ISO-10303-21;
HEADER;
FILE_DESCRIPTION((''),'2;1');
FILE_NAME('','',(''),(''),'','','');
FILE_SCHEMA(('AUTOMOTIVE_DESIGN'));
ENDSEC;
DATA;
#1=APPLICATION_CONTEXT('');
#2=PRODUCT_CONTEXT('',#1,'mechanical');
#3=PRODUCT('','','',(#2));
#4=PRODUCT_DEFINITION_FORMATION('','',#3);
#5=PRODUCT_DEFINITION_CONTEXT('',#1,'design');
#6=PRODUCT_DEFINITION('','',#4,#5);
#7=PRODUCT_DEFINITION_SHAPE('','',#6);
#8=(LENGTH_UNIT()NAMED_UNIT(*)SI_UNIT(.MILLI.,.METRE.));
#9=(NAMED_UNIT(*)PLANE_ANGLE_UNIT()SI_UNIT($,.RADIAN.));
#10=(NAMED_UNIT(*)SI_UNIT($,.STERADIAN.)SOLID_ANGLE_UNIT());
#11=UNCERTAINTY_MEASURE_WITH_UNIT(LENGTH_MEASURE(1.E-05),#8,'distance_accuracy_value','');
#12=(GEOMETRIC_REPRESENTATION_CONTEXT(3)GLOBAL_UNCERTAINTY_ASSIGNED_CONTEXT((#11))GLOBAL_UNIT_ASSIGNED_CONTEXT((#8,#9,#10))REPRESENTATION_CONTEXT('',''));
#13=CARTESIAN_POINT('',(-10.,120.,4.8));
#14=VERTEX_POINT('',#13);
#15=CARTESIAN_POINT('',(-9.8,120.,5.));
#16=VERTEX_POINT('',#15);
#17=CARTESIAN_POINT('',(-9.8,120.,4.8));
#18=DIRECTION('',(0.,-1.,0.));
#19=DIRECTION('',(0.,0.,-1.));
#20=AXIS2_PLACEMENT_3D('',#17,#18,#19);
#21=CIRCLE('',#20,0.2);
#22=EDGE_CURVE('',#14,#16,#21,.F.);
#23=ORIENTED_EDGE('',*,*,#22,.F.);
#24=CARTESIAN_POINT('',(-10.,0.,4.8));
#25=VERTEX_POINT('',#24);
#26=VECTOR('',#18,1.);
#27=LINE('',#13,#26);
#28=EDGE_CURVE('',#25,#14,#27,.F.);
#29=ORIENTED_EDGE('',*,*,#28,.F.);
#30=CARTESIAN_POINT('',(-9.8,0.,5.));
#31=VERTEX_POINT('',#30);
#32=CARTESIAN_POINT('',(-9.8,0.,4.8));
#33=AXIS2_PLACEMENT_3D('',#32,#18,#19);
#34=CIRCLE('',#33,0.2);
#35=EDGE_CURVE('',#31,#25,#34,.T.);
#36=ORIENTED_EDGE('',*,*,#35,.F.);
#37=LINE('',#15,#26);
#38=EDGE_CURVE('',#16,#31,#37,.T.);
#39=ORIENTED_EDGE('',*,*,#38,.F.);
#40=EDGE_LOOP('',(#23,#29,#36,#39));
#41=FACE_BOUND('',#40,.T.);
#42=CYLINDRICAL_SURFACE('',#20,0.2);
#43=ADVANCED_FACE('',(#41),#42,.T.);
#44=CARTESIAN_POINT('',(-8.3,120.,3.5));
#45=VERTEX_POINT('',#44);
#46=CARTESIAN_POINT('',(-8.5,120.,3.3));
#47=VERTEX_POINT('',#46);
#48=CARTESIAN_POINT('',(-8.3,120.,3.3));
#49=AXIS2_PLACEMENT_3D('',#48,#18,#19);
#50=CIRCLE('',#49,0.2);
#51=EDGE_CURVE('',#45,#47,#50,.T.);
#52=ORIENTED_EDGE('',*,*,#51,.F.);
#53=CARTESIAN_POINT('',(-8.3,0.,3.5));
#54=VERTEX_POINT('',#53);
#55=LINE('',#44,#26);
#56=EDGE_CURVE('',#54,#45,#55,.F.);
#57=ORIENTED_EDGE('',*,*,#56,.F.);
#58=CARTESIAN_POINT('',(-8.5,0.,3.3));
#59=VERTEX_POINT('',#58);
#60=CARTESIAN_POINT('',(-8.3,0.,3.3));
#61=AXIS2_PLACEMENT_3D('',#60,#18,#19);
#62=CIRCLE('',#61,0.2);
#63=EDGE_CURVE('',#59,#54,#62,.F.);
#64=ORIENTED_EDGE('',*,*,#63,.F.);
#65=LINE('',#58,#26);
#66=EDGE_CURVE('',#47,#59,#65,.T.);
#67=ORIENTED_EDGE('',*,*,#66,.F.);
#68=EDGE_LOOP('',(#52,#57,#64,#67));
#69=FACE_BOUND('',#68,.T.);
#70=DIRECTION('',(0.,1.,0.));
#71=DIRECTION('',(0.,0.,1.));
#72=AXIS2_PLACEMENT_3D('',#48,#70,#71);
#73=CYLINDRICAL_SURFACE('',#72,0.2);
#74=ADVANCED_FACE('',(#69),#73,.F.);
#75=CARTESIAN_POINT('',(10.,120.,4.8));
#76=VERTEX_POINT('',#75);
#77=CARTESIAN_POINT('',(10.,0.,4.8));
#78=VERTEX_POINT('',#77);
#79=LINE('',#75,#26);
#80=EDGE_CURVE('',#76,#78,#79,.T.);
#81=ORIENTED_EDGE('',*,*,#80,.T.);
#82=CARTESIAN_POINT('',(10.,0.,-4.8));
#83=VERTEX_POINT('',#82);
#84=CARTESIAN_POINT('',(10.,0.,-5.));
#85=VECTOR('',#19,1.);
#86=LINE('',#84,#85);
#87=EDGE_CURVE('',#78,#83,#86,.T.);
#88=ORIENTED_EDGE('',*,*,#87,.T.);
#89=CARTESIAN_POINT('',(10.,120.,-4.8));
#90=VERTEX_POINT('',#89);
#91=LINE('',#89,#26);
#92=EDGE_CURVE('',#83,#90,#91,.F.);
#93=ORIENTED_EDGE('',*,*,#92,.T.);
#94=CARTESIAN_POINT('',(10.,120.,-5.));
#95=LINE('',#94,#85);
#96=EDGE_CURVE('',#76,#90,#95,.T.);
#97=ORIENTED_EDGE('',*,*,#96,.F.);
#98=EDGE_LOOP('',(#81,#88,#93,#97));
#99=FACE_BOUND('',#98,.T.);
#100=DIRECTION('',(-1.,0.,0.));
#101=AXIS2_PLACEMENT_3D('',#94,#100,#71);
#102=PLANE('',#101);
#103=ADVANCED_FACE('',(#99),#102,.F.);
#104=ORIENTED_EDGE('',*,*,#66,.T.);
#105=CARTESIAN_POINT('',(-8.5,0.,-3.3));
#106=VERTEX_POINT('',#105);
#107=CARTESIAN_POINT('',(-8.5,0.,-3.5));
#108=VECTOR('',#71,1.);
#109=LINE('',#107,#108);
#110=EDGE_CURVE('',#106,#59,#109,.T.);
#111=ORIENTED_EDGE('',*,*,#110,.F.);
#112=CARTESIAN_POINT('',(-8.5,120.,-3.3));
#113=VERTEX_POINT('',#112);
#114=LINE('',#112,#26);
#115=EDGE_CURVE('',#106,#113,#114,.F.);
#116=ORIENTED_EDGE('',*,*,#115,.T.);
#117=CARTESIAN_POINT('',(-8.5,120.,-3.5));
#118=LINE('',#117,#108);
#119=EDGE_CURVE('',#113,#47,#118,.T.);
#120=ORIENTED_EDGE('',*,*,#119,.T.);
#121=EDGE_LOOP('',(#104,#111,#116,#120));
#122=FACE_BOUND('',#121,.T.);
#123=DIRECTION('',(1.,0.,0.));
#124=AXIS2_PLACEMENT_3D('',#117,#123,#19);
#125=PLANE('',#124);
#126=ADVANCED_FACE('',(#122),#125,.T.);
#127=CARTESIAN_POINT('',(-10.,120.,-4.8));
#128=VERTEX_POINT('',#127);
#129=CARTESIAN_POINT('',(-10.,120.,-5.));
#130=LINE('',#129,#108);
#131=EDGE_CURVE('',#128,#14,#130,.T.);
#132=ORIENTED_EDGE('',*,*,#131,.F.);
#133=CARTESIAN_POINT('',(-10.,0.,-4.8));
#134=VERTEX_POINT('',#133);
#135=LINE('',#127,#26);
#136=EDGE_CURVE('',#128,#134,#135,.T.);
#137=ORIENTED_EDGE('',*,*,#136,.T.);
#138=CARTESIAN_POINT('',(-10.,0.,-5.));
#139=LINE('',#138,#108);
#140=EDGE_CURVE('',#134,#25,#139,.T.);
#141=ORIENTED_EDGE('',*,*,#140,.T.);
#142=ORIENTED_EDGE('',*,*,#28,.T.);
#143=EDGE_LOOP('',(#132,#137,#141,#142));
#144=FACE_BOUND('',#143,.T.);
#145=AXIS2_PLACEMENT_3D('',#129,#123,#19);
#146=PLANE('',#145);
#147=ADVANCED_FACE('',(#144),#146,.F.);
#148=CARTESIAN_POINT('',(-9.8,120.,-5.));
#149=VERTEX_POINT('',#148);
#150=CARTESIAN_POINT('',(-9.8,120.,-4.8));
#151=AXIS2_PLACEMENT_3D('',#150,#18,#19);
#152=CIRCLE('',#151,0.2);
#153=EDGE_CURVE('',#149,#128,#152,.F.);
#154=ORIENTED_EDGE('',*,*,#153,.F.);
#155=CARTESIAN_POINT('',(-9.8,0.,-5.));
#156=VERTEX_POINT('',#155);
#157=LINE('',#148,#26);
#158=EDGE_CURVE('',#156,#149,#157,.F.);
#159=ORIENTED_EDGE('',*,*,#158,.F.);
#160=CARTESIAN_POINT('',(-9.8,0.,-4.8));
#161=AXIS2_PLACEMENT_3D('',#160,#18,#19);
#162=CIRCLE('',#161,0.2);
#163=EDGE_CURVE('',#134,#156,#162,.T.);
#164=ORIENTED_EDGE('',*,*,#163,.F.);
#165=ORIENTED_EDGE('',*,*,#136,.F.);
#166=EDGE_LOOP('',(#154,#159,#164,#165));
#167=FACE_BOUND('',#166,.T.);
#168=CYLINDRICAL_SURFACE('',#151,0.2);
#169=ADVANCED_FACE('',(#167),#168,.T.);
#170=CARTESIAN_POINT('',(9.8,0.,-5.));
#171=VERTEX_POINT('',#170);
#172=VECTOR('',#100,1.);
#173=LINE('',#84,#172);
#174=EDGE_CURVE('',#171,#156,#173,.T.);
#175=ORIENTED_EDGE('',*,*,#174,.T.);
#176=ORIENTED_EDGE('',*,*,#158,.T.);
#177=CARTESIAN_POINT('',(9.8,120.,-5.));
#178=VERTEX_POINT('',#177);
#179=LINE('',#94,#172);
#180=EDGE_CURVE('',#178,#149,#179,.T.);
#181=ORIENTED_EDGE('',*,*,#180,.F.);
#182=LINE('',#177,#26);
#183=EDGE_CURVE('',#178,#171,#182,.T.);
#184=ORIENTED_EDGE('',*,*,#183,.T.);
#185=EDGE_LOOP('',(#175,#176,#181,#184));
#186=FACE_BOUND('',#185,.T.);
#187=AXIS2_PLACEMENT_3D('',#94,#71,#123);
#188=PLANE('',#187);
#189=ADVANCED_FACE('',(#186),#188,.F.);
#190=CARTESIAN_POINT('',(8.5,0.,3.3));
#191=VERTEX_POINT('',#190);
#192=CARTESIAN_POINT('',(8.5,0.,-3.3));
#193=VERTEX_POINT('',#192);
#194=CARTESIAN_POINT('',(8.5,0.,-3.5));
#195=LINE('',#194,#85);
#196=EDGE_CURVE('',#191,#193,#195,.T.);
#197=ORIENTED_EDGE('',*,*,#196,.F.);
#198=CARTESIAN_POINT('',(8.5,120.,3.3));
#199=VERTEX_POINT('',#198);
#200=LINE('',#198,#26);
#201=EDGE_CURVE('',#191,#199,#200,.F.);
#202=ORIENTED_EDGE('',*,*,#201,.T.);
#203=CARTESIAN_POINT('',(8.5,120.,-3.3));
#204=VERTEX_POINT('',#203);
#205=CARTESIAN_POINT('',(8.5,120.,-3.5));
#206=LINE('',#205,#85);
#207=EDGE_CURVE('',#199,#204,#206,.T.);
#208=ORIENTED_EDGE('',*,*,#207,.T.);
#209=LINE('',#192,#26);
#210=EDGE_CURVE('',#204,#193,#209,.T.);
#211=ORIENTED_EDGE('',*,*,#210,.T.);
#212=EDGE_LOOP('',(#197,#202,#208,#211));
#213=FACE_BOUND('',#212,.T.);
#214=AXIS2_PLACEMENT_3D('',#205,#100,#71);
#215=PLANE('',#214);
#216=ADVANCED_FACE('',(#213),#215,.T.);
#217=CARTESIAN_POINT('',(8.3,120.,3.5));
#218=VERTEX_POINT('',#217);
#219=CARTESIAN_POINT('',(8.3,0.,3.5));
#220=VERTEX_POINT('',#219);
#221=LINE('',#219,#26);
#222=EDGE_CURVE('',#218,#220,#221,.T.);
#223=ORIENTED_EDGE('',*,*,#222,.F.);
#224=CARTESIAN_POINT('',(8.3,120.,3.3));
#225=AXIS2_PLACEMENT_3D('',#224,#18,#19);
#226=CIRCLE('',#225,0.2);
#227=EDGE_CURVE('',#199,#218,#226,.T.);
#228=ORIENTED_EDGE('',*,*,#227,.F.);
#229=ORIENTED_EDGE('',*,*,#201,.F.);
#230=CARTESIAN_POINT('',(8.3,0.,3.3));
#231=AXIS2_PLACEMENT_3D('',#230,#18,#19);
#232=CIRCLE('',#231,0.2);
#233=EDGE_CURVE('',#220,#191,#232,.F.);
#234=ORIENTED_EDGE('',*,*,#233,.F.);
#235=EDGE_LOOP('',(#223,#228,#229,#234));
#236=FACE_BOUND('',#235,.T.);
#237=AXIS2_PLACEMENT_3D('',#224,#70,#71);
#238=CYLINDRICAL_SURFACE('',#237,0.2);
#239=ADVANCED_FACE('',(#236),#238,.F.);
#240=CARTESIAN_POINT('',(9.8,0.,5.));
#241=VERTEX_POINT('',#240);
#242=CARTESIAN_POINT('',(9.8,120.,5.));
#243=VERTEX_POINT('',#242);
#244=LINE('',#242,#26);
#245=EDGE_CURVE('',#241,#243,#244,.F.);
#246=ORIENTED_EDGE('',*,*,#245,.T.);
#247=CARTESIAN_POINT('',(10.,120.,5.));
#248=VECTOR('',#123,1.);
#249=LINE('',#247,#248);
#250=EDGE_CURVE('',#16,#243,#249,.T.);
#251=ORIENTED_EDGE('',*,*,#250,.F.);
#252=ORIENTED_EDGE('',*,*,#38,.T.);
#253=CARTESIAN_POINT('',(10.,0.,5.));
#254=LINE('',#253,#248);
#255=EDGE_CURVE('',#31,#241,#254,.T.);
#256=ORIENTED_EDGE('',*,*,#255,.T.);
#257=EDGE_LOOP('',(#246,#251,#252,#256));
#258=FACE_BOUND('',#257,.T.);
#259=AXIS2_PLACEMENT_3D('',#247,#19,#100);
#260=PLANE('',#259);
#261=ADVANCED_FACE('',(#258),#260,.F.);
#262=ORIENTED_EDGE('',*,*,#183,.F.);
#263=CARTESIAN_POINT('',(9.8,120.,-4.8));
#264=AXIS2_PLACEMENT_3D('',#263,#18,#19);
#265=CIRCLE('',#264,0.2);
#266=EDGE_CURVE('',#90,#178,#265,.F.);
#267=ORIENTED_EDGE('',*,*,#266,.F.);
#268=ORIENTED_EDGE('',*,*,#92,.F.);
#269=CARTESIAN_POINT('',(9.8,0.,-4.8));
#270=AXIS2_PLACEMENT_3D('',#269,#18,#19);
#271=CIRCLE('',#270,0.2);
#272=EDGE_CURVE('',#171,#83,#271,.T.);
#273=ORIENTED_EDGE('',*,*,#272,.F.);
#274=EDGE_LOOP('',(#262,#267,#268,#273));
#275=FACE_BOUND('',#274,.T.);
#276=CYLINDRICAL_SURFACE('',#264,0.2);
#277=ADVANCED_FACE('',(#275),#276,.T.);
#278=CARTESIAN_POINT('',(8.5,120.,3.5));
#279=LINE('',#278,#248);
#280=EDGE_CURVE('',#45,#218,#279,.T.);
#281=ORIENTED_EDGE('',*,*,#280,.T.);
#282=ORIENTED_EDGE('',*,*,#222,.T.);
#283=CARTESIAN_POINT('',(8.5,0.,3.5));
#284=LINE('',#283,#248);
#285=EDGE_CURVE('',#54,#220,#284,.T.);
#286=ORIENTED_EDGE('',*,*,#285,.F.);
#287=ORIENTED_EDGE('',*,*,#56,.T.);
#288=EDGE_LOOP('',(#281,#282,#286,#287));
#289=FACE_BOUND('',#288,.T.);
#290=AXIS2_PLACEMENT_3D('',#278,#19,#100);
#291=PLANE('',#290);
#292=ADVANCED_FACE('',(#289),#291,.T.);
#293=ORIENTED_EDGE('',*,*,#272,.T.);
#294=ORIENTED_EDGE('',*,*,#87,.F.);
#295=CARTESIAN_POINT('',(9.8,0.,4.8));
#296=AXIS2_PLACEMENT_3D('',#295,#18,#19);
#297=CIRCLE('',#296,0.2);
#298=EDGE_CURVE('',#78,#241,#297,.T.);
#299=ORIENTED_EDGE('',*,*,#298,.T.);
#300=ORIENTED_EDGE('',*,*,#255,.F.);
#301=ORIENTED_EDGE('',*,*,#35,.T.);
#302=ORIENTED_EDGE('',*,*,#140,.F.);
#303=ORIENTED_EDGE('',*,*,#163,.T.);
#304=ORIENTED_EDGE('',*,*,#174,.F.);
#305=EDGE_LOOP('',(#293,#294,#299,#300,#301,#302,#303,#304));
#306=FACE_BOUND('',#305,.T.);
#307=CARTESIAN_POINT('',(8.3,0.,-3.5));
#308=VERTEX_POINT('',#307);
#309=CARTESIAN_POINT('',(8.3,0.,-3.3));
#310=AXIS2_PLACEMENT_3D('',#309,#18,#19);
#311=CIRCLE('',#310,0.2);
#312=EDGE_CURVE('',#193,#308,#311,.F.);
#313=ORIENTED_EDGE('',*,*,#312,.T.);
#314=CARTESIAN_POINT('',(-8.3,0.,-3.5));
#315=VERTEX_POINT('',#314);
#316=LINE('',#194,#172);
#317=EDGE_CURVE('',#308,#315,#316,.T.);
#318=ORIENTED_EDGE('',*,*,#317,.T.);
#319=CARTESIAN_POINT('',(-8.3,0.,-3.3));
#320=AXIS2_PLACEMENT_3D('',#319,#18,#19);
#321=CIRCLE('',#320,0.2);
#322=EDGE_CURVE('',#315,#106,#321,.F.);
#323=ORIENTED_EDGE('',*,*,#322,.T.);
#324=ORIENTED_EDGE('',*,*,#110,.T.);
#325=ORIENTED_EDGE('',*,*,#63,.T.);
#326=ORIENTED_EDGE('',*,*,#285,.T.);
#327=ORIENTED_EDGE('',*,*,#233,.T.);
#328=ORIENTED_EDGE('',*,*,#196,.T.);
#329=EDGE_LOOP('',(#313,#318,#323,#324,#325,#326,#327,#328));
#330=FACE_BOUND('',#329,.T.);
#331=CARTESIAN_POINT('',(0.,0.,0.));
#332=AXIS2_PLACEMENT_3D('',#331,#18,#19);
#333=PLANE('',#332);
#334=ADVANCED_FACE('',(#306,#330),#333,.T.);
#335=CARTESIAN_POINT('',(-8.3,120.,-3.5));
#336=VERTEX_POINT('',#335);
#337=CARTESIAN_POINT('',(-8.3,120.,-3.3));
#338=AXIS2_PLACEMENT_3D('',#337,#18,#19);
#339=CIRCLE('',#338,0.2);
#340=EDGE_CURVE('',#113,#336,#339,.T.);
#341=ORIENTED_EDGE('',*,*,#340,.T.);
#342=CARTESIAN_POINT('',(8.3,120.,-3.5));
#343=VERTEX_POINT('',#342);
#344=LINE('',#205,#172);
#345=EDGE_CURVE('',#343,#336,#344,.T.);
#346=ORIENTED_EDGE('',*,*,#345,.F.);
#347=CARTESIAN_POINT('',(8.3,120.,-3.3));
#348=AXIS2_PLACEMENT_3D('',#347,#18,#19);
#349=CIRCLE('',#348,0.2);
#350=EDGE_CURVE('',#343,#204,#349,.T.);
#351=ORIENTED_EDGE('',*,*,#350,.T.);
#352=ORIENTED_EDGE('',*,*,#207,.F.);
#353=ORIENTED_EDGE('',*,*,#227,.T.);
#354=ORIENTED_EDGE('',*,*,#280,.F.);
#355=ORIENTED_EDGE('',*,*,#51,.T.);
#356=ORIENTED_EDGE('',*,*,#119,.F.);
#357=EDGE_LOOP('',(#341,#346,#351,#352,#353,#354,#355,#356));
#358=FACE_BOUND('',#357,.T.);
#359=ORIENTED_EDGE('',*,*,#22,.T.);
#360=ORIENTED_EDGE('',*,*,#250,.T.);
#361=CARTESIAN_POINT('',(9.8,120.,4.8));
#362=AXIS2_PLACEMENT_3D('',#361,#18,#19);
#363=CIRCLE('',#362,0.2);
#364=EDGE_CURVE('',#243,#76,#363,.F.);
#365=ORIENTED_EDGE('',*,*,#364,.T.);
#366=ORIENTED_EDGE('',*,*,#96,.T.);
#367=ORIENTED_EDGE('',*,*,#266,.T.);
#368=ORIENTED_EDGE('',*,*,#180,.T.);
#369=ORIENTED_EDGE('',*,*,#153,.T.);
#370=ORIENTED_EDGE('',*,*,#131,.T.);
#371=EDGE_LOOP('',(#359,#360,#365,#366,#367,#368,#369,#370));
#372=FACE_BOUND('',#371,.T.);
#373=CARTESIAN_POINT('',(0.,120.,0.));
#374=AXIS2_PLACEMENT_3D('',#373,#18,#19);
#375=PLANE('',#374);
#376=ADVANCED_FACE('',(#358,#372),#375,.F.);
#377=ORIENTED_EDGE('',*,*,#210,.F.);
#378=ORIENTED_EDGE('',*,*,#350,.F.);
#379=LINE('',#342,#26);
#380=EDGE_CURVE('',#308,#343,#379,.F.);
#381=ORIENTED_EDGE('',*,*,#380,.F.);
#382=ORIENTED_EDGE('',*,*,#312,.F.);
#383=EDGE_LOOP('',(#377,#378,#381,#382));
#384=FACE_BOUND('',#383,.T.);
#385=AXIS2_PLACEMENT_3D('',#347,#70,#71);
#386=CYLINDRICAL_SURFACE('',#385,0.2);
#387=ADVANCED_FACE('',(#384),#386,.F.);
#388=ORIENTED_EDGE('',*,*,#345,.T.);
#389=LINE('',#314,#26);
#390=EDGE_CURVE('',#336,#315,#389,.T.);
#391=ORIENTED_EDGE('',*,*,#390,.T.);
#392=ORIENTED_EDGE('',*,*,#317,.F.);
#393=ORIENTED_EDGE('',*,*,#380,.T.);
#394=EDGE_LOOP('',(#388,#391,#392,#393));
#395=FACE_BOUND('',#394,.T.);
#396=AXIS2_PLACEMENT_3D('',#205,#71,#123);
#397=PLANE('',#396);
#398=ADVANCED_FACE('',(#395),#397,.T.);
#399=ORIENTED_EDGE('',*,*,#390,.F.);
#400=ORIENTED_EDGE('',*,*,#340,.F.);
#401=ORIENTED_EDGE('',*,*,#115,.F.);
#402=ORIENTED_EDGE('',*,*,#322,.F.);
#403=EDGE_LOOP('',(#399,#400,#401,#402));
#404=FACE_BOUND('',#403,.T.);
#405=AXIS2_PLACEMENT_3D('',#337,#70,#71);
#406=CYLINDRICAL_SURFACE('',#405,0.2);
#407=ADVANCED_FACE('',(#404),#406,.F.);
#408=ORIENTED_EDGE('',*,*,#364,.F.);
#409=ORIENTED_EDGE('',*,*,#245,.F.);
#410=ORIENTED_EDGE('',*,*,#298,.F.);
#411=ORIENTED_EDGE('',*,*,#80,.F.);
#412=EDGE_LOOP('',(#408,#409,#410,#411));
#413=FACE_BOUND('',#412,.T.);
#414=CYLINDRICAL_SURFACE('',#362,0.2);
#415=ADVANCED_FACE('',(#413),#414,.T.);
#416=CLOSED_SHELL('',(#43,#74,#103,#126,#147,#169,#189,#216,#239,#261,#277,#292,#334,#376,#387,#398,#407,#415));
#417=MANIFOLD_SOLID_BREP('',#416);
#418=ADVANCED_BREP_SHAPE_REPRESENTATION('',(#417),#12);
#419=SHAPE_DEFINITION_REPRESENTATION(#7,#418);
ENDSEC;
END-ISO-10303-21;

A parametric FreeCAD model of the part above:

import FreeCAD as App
import Part
import Sketcher

V = App.Vector
Q = App.Units.Quantity


def edges_at(feature, points):
    """Names of the edges that pass closest to the given points."""
    edges = feature.Shape.Edges
    near = lambda p: min(range(len(edges)), key=lambda i: edges[i].distToShape(Part.Vertex(*p))[0])
    return sorted({f"Edge{near(p) + 1}" for p in points})

doc = App.newDocument("Part")
body = doc.addObject("PartDesign::Body", "Body")

sketch1 = body.newObject("Sketcher::SketchObject", "Sketch")
sketch1.AttachmentSupport = (doc.getObject("XZ_Plane"), [""])
sketch1.MapMode = "FlatFace"
sketch1.addGeometry(Part.LineSegment(V(-10, -5, 0), V(-10, 5, 0)), False)
sketch1.addGeometry(Part.LineSegment(V(-10, 5, 0), V(10, 5, 0)), False)
sketch1.addGeometry(Part.LineSegment(V(10, 5, 0), V(10, -5, 0)), False)
sketch1.addGeometry(Part.LineSegment(V(10, -5, 0), V(-10, -5, 0)), False)
sketch1.addGeometry(Part.LineSegment(V(8, 4, 0), V(-8, 4, 0)), False)
sketch1.addGeometry(Part.LineSegment(V(-8, 4, 0), V(-8, -4, 0)), False)
sketch1.addGeometry(Part.LineSegment(V(-8, -4, 0), V(8, -4, 0)), False)
sketch1.addGeometry(Part.LineSegment(V(8, -4, 0), V(8, 4, 0)), False)
sketch1.addConstraint(Sketcher.Constraint("Coincident", 0, 2, 1, 1))
sketch1.addConstraint(Sketcher.Constraint("Coincident", 1, 2, 2, 1))
sketch1.addConstraint(Sketcher.Constraint("Coincident", 2, 2, 3, 1))
sketch1.addConstraint(Sketcher.Constraint("Coincident", 3, 2, 0, 1))
sketch1.addConstraint(Sketcher.Constraint("Coincident", 4, 2, 5, 1))
sketch1.addConstraint(Sketcher.Constraint("Coincident", 5, 2, 6, 1))
sketch1.addConstraint(Sketcher.Constraint("Coincident", 6, 2, 7, 1))
sketch1.addConstraint(Sketcher.Constraint("Coincident", 7, 2, 4, 1))
sketch1.addConstraint(Sketcher.Constraint("Vertical", 0))
sketch1.addConstraint(Sketcher.Constraint("Horizontal", 1))
sketch1.addConstraint(Sketcher.Constraint("Vertical", 2))
sketch1.addConstraint(Sketcher.Constraint("Horizontal", 3))
sketch1.addConstraint(Sketcher.Constraint("Horizontal", 4))
sketch1.addConstraint(Sketcher.Constraint("Vertical", 5))
sketch1.addConstraint(Sketcher.Constraint("Horizontal", 6))
sketch1.addConstraint(Sketcher.Constraint("Vertical", 7))
sketch1.addConstraint(Sketcher.Constraint("Symmetric", 0, 2, 2, 2, -1, 1))
sketch1.addConstraint(Sketcher.Constraint("Symmetric", 4, 2, 6, 2, -1, 1))
sketch1.addConstraint(Sketcher.Constraint("DistanceX", 1, 1, 1, 2, Q("20 mm")))
sketch1.addConstraint(Sketcher.Constraint("DistanceX", 4, 2, 4, 1, Q("17 mm")))
sketch1.addConstraint(Sketcher.Constraint("DistanceY", 0, 1, 0, 2, Q("10 mm")))
sketch1.addConstraint(Sketcher.Constraint("DistanceY", 5, 2, 5, 1, Q("7 mm")))
pad1 = body.newObject("PartDesign::Pad", "Pad")
pad1.Profile = sketch1
pad1.Length = 120
pad1.Reversed = True
doc.recompute()

fillet = body.newObject("PartDesign::Fillet", "Fillet")
fillet.Base = (pad1, edges_at(pad1, [
    (8.5, 60, 3.5),
    (8.5, 60, -3.5),
    (-8.5, 60, -3.5),
    (-8.5, 60, 3.5),
    (-10, 60, -5),
    (10, 60, -5),
    (10, 60, 5),
    (-10, 60, 5),
]))
fillet.Radius = 0.2

doc.recompute()
